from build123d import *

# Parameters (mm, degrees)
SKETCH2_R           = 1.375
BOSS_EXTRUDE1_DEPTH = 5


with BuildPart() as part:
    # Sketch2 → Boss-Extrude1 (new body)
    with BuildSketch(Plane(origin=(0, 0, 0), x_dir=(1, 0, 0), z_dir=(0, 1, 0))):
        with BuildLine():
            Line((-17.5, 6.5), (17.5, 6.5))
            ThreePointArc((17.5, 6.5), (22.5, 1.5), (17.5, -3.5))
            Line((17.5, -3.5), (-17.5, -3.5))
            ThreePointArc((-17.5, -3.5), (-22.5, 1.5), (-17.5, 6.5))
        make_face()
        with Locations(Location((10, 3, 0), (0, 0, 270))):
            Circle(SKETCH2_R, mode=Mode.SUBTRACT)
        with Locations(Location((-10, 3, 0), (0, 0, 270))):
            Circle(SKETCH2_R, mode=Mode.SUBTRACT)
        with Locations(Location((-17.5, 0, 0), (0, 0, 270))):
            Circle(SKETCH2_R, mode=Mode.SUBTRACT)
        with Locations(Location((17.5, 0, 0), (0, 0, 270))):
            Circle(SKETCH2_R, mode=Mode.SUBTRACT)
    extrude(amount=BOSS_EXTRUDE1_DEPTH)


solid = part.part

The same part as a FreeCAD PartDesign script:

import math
import FreeCAD as App
import Part
import Sketcher

V = App.Vector
Q = App.Units.Quantity

doc = App.newDocument("Part")
body = doc.addObject("PartDesign::Body", "Body")

# Sketch on XZ plane
sketch1 = body.newObject("Sketcher::SketchObject", "Sketch")
sketch1.AttachmentSupport = (doc.getObject("XZ_Plane"), [""])
sketch1.MapMode = "FlatFace"
sketch1.addGeometry([
    Part.LineSegment(V(17.5, -6.5, 0), V(-17.5, -6.5, 0)),  # 0
    Part.ArcOfCircle(Part.Circle(V(-17.5, -1.5, 0), V(0, 0, 1), 5), math.radians(90), math.radians(270)),  # 1
    Part.LineSegment(V(-17.5, 3.5, 0), V(17.5, 3.5, 0)),  # 2
    Part.ArcOfCircle(Part.Circle(V(17.5, -1.5, 0), V(0, 0, 1), 5), math.radians(-90), math.radians(90)),  # 3
    Part.Circle(V(17.5, 0, 0), V(0, 0, 1), 1.375),  # 4
    Part.Circle(V(-17.5, 0, 0), V(0, 0, 1), 1.375),  # 5
    Part.Circle(V(10, -3, 0), V(0, 0, 1), 1.375),  # 6
    Part.Circle(V(-10, -3, 0), V(0, 0, 1), 1.375),  # 7
], False)
sketch1.addConstraint([
    Sketcher.Constraint("Tangent", 0, 2, 1, 2),
    Sketcher.Constraint("Tangent", 1, 1, 2, 1),
    Sketcher.Constraint("Tangent", 2, 2, 3, 2),
    Sketcher.Constraint("Tangent", 3, 1, 0, 1),
    Sketcher.Constraint("Horizontal", 0),
    Sketcher.Constraint("Horizontal", 2),
    Sketcher.Constraint("Equal", 4, 5),
    Sketcher.Constraint("Equal", 5, 6),
    Sketcher.Constraint("Equal", 6, 7),
    Sketcher.Constraint("Symmetric", 4, 3, 5, 3, -1, 1),
    Sketcher.Constraint("Symmetric", 6, 3, 7, 3, -2),
    Sketcher.Constraint("PointOnObject", 4, 3, -1),
    Sketcher.Constraint("Vertical", 3, 3, 4, 3),
    Sketcher.Constraint("Vertical", 1, 3, 5, 3),
    Sketcher.Constraint("Radius", 1, Q("5 mm")),
    Sketcher.Constraint("Diameter", 4, Q("2.75 mm")),
    Sketcher.Constraint("DistanceX", 0, 2, 0, 1, Q("35 mm")),
    Sketcher.Constraint("DistanceX", -1, 1, 6, 3, Q("10 mm")),
    Sketcher.Constraint("DistanceY", 6, 3, -1, 1, Q("3 mm")),
    Sketcher.Constraint("DistanceY", 1, 3, -1, 1, Q("1.5 mm")),
])
pad1 = body.newObject("PartDesign::Pad", "Pad")
pad1.Profile = sketch1
pad1.Length = 5
pad1.Reversed = True

doc.recompute()
